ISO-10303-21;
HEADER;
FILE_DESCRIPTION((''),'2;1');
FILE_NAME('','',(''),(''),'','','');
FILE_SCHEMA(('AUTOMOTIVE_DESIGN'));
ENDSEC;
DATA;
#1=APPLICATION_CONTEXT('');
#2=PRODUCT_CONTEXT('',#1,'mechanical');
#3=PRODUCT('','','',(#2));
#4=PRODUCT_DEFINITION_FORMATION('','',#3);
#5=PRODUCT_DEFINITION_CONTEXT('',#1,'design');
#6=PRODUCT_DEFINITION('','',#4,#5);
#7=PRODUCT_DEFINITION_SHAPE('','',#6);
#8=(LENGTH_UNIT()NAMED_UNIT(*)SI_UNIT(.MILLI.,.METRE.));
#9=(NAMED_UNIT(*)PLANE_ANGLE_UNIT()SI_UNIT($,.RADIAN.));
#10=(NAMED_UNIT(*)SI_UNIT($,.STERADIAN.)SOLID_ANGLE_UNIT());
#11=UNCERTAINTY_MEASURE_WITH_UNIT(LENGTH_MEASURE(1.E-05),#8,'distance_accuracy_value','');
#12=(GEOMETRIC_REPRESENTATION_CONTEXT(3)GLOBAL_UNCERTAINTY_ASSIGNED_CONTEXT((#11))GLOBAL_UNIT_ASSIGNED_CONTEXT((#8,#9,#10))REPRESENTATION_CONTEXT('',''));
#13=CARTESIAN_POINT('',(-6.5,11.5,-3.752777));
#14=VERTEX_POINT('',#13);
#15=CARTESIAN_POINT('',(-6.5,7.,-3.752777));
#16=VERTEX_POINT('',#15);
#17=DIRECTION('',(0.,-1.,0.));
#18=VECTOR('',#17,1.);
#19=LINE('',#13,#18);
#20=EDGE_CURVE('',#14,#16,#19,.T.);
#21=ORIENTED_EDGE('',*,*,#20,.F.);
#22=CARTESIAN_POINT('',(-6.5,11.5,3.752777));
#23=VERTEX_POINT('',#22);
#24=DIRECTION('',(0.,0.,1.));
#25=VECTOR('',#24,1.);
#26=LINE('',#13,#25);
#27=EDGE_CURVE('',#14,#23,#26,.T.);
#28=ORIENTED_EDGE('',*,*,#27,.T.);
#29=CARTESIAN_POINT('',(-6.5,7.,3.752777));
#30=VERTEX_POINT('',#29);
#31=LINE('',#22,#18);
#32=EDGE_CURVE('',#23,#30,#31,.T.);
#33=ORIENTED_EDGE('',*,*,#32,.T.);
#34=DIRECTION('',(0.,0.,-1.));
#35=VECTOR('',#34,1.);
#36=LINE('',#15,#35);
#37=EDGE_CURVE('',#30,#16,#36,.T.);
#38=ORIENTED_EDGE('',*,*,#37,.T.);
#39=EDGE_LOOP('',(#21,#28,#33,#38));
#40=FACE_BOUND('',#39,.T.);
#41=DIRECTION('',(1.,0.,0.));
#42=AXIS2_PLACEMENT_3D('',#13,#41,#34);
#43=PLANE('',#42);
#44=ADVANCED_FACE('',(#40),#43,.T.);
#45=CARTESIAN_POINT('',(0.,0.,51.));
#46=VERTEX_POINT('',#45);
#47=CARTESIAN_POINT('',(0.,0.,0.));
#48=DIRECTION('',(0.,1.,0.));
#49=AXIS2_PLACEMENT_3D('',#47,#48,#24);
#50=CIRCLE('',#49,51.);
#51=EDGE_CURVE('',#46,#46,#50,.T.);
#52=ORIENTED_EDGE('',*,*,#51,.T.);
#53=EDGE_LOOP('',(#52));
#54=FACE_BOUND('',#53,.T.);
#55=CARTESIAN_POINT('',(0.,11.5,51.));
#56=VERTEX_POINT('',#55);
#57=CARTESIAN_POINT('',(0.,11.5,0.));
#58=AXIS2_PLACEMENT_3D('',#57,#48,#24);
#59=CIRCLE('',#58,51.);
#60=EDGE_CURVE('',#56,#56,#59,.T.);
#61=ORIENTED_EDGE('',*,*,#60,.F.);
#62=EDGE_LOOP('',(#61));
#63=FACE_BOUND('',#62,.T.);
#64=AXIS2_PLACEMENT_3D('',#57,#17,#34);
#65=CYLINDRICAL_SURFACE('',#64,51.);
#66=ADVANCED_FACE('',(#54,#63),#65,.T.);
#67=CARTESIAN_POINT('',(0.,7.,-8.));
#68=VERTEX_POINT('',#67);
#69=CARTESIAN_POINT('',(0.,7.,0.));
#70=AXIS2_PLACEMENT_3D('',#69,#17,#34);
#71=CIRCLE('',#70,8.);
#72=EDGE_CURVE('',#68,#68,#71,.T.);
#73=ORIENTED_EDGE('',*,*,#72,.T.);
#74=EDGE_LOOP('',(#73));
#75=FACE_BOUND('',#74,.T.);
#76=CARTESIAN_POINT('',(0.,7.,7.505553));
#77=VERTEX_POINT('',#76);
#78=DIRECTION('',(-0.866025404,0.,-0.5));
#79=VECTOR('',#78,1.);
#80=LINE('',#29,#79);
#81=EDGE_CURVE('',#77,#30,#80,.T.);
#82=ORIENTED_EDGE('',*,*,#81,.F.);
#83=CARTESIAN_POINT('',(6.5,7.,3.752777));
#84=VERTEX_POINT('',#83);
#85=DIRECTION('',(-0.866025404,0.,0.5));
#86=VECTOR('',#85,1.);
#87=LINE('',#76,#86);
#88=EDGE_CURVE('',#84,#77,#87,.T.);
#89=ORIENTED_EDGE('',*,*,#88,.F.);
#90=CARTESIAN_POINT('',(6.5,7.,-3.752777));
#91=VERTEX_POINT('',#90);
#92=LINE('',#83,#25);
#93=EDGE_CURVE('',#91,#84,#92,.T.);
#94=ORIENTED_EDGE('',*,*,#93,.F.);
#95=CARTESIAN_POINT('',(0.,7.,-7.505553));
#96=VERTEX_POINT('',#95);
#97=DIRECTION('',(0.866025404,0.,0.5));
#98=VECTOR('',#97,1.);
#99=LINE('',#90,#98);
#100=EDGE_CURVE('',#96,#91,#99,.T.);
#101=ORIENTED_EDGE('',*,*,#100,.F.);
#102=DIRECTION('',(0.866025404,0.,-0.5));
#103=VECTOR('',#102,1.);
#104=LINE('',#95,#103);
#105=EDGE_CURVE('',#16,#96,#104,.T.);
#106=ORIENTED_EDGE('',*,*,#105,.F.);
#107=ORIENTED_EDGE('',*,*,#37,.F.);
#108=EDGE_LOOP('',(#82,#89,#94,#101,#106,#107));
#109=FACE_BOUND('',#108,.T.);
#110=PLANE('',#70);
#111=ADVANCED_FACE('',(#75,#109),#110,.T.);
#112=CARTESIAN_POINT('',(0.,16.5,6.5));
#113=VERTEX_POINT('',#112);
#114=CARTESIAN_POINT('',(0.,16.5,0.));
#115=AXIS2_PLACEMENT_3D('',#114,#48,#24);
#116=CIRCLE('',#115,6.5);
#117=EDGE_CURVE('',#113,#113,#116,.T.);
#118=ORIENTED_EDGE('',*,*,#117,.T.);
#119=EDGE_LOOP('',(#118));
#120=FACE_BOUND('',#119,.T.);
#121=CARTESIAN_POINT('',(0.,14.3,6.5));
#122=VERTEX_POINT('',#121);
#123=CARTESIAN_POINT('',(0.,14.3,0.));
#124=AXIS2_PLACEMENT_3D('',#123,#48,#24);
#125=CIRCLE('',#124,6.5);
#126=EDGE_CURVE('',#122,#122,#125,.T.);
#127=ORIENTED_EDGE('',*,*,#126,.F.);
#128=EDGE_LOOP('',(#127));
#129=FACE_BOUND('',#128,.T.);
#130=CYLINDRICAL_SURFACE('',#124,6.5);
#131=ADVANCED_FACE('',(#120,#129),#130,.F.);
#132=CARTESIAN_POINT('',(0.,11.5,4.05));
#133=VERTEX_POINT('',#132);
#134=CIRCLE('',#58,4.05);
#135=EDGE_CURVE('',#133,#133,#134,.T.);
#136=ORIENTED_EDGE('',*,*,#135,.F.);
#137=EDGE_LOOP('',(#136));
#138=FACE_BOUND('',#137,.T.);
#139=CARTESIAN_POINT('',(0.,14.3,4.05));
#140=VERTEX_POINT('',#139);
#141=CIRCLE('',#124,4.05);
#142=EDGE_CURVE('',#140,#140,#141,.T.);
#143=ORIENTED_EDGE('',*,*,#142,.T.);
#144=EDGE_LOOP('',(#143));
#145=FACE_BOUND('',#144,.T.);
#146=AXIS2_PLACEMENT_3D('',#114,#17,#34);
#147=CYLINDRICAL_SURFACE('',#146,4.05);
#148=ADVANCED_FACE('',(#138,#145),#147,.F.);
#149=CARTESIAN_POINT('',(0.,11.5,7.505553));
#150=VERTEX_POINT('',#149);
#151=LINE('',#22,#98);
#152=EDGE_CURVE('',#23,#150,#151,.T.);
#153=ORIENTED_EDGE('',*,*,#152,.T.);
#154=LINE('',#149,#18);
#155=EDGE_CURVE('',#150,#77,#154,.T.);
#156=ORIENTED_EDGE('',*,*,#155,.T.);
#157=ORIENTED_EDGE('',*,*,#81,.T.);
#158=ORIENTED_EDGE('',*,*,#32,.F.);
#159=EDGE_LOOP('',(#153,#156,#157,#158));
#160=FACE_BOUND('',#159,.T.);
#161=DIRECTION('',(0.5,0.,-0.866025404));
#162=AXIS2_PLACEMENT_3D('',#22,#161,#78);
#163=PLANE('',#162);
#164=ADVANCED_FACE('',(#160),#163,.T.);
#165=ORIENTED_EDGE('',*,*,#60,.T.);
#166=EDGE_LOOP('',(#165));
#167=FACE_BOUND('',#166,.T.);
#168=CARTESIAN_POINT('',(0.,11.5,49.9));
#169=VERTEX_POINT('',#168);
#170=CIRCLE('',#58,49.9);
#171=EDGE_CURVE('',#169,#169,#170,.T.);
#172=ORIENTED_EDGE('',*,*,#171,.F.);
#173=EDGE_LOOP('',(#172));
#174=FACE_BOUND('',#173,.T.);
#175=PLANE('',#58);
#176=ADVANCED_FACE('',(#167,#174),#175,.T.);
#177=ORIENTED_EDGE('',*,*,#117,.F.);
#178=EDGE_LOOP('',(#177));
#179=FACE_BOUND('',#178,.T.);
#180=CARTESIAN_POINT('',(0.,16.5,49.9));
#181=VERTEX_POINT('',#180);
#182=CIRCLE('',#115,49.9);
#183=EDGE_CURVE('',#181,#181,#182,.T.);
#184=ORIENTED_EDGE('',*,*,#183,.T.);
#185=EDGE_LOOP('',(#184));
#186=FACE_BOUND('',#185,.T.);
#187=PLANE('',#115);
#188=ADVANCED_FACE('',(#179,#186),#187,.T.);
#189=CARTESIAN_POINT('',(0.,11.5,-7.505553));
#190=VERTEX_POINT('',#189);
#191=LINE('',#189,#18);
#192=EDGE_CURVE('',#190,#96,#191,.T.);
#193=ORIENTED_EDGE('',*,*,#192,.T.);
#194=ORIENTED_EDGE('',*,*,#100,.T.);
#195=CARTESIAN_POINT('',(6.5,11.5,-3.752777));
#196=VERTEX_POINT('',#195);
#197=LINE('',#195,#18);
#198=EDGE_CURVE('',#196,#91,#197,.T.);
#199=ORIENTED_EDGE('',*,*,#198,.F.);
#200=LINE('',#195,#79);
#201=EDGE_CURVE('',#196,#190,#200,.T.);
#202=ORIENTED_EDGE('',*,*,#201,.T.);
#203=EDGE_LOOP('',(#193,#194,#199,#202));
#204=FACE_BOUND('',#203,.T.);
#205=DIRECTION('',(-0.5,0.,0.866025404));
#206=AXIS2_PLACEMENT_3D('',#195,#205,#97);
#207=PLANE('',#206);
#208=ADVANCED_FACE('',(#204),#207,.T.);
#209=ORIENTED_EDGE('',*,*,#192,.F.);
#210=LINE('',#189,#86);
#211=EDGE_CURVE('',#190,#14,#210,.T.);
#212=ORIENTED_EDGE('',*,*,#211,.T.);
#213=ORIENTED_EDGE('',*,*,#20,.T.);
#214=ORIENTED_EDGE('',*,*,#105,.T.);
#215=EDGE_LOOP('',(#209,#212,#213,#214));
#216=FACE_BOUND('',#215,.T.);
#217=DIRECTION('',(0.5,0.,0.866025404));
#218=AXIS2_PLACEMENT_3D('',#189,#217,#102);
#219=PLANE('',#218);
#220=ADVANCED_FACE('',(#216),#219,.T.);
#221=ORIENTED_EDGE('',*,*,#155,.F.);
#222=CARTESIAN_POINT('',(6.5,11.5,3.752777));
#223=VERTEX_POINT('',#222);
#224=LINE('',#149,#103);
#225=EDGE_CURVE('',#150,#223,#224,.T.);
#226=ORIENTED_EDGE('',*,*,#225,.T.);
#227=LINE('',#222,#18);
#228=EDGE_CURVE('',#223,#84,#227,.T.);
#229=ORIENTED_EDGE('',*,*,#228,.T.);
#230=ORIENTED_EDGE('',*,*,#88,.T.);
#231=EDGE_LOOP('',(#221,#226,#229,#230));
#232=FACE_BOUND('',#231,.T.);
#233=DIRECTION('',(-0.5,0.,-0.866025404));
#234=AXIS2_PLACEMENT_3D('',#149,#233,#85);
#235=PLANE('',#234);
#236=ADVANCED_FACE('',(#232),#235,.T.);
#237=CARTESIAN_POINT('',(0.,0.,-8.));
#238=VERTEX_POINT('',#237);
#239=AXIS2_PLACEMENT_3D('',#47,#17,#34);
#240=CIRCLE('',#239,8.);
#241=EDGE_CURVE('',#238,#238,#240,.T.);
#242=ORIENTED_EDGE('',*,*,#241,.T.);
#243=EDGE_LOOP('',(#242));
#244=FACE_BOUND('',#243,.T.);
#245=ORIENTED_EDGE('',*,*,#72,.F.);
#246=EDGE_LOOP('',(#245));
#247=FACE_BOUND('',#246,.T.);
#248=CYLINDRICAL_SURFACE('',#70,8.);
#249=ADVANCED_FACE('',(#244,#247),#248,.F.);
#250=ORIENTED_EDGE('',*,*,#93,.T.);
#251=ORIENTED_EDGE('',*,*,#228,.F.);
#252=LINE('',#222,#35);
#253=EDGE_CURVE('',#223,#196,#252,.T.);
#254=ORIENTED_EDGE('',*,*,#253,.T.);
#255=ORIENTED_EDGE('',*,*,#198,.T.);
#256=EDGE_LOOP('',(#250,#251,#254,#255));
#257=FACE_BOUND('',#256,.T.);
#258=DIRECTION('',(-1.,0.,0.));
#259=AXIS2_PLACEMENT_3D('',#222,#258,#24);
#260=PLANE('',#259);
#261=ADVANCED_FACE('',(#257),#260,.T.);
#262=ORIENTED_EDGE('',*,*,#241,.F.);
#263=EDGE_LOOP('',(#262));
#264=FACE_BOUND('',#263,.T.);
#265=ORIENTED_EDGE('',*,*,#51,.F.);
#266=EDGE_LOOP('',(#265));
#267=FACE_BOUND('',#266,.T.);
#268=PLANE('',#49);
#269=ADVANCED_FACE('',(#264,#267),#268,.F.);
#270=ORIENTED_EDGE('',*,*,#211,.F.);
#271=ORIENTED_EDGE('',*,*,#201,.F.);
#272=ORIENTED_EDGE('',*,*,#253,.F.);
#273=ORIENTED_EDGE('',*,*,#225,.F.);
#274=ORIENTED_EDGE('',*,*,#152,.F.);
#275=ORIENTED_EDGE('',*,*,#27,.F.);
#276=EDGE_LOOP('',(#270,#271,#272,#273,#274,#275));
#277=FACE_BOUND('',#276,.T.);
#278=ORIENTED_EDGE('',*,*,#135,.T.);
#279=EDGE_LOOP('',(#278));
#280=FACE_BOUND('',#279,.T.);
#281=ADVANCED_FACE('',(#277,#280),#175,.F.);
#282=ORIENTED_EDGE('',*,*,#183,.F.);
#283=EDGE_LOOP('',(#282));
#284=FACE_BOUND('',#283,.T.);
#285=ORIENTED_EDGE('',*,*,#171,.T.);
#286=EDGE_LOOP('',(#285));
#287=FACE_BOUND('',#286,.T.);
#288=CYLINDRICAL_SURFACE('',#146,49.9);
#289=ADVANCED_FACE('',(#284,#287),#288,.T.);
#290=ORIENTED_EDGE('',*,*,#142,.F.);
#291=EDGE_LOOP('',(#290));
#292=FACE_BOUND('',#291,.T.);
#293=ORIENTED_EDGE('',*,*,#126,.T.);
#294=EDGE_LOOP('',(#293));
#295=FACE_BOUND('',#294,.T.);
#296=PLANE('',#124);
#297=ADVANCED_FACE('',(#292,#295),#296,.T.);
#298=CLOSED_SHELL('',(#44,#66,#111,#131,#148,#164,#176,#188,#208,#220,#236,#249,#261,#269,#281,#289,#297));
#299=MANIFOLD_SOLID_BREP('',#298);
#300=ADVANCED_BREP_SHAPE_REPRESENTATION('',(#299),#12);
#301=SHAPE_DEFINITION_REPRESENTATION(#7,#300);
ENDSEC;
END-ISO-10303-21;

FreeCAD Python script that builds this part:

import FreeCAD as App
import Part
import Sketcher
from FreeCAD import Vector
Q = App.Units.Quantity

doc = App.newDocument("Part")
params = doc.addObject("Spreadsheet::Sheet", "Params")
for row, (alias, value) in enumerate([
    ("sketch1_diameter", "102 mm"),
    ("pad1_length", "11.5 mm"),
    ("sketch2_diameter", "99.8 mm"),
    ("sketch2_diameter2", "8.1 mm"),
    ("pad2_length", "5 mm"),
    ("sketch3_diameter", "16 mm"),
    ("pocket1_length", "7 mm"),
    ("sketch4_diameter", "13 mm"),
    ("pocket2_length", "2.2 mm"),
], start=1):
    params.set(f"A{row}", alias)
    params.set(f"B{row}", "=" + value)
    params.setAlias(f"B{row}", alias)

body = doc.addObject("PartDesign::Body", "Body")

sketch1 = body.newObject("Sketcher::SketchObject", "Sketch")
sketch1.AttachmentSupport = (doc.getObject("XZ_Plane"), [""])
sketch1.MapMode = "FlatFace"
sketch1.addGeometry(Part.Circle(Vector(0, 0, 0), Vector(0, 0, 1), 51), False)
sketch1.addGeometry(Part.LineSegment(Vector(-6.5, -3.752777, 0), Vector(0, -7.505553, 0)), False)
sketch1.addGeometry(Part.LineSegment(Vector(0, -7.505553, 0), Vector(6.5, -3.752777, 0)), False)
sketch1.addGeometry(Part.LineSegment(Vector(6.5, -3.752777, 0), Vector(6.5, 3.752777, 0)), False)
sketch1.addGeometry(Part.LineSegment(Vector(6.5, 3.752777, 0), Vector(0, 7.505553, 0)), False)
sketch1.addGeometry(Part.LineSegment(Vector(0, 7.505553, 0), Vector(-6.5, 3.752777, 0)), False)
sketch1.addGeometry(Part.LineSegment(Vector(-6.5, 3.752777, 0), Vector(-6.5, -3.752777, 0)), False)
sketch1.addConstraint(Sketcher.Constraint("Coincident", 1, 2, 2, 1))
sketch1.addConstraint(Sketcher.Constraint("Coincident", 2, 2, 3, 1))
sketch1.addConstraint(Sketcher.Constraint("Coincident", 3, 2, 4, 1))
sketch1.addConstraint(Sketcher.Constraint("Coincident", 4, 2, 5, 1))
sketch1.addConstraint(Sketcher.Constraint("Coincident", 5, 2, 6, 1))
sketch1.addConstraint(Sketcher.Constraint("Coincident", 6, 2, 1, 1))
sketch1.addConstraint(Sketcher.Constraint("Vertical", 3))
sketch1.addConstraint(Sketcher.Constraint("Vertical", 6))
sketch1.addConstraint(Sketcher.Constraint("Coincident", 0, 3, -1, 1))
sketch1.addConstraint(Sketcher.Constraint("Symmetric", 1, 2, 4, 2, -1, 1))
sketch1.addConstraint(Sketcher.Constraint("Symmetric", 2, 2, 5, 2, -1, 1))
sketch1.addConstraint(Sketcher.Constraint("PointOnObject", 1, 2, -2))
sketch1.addConstraint(Sketcher.Constraint("Parallel", 1, 4))
sketch1.addConstraint(Sketcher.Constraint("Horizontal", 3, 2, 5, 2))
sketch1.addConstraint(Sketcher.Constraint("Diameter", 0, 102.0))
sketch1.addConstraint(Sketcher.Constraint("Angle", 1, Q("-30 deg")))
sketch1.addConstraint(Sketcher.Constraint("DistanceX", 5, 2, 3, 2, 13.0))
sketch1.addConstraint(Sketcher.Constraint("DistanceY", 3, 1, 3, 2, 7.505554))
sketch1.setExpression("Constraints[14]", "Params.sketch1_diameter")
pad1 = body.newObject("PartDesign::Pad", "Pad")
pad1.Profile = sketch1
pad1.setExpression("Length", "Params.pad1_length")
pad1.Reversed = True

sketch2 = body.newObject("Sketcher::SketchObject", "Sketch001")
sketch2.AttachmentSupport = (doc.getObject("XZ_Plane"), [""])
sketch2.MapMode = "FlatFace"
sketch2.AttachmentOffset = App.Placement(Vector(0, 0, -11.5), App.Rotation())
sketch2.addGeometry(Part.Circle(Vector(0, 0, 0), Vector(0, 0, 1), 49.9), False)
sketch2.addGeometry(Part.Circle(Vector(0, 0, 0), Vector(0, 0, 1), 4.05), False)
sketch2.addConstraint(Sketcher.Constraint("Coincident", 0, 3, -1, 1))
sketch2.addConstraint(Sketcher.Constraint("Coincident", 1, 3, -1, 1))
sketch2.addConstraint(Sketcher.Constraint("Diameter", 0, 99.8))
sketch2.addConstraint(Sketcher.Constraint("Diameter", 1, 8.1))
sketch2.setExpression("Constraints[2]", "Params.sketch2_diameter")
sketch2.setExpression("Constraints[3]", "Params.sketch2_diameter2")
pad2 = body.newObject("PartDesign::Pad", "Pad001")
pad2.Profile = sketch2
pad2.setExpression("Length", "Params.pad2_length")
pad2.Reversed = True

sketch3 = body.newObject("Sketcher::SketchObject", "Sketch002")
sketch3.AttachmentSupport = (doc.getObject("XZ_Plane"), [""])
sketch3.MapMode = "FlatFace"
sketch3.addGeometry(Part.Circle(Vector(0, 0, 0), Vector(0, 0, 1), 8), False)
sketch3.addConstraint(Sketcher.Constraint("Coincident", 0, 3, -1, 1))
sketch3.addConstraint(Sketcher.Constraint("Diameter", 0, 16.0))
sketch3.setExpression("Constraints[1]", "Params.sketch3_diameter")
pocket1 = body.newObject("PartDesign::Pocket", "Pocket")
pocket1.Profile = sketch3
pocket1.setExpression("Length", "Params.pocket1_length")

sketch4 = body.newObject("Sketcher::SketchObject", "Sketch003")
sketch4.AttachmentSupport = (doc.getObject("XZ_Plane"), [""])
sketch4.MapMode = "FlatFace"
sketch4.AttachmentOffset = App.Placement(Vector(0, 0, -16.5), App.Rotation())
sketch4.addGeometry(Part.Circle(Vector(0, 0, 0), Vector(0, 0, 1), 6.5), False)
sketch4.addConstraint(Sketcher.Constraint("Coincident", 0, 3, -1, 1))
sketch4.addConstraint(Sketcher.Constraint("Diameter", 0, 13.0))
sketch4.setExpression("Constraints[1]", "Params.sketch4_diameter")
pocket2 = body.newObject("PartDesign::Pocket", "Pocket001")
pocket2.Profile = sketch4
pocket2.setExpression("Length", "Params.pocket2_length")
pocket2.Reversed = True

doc.recompute()
